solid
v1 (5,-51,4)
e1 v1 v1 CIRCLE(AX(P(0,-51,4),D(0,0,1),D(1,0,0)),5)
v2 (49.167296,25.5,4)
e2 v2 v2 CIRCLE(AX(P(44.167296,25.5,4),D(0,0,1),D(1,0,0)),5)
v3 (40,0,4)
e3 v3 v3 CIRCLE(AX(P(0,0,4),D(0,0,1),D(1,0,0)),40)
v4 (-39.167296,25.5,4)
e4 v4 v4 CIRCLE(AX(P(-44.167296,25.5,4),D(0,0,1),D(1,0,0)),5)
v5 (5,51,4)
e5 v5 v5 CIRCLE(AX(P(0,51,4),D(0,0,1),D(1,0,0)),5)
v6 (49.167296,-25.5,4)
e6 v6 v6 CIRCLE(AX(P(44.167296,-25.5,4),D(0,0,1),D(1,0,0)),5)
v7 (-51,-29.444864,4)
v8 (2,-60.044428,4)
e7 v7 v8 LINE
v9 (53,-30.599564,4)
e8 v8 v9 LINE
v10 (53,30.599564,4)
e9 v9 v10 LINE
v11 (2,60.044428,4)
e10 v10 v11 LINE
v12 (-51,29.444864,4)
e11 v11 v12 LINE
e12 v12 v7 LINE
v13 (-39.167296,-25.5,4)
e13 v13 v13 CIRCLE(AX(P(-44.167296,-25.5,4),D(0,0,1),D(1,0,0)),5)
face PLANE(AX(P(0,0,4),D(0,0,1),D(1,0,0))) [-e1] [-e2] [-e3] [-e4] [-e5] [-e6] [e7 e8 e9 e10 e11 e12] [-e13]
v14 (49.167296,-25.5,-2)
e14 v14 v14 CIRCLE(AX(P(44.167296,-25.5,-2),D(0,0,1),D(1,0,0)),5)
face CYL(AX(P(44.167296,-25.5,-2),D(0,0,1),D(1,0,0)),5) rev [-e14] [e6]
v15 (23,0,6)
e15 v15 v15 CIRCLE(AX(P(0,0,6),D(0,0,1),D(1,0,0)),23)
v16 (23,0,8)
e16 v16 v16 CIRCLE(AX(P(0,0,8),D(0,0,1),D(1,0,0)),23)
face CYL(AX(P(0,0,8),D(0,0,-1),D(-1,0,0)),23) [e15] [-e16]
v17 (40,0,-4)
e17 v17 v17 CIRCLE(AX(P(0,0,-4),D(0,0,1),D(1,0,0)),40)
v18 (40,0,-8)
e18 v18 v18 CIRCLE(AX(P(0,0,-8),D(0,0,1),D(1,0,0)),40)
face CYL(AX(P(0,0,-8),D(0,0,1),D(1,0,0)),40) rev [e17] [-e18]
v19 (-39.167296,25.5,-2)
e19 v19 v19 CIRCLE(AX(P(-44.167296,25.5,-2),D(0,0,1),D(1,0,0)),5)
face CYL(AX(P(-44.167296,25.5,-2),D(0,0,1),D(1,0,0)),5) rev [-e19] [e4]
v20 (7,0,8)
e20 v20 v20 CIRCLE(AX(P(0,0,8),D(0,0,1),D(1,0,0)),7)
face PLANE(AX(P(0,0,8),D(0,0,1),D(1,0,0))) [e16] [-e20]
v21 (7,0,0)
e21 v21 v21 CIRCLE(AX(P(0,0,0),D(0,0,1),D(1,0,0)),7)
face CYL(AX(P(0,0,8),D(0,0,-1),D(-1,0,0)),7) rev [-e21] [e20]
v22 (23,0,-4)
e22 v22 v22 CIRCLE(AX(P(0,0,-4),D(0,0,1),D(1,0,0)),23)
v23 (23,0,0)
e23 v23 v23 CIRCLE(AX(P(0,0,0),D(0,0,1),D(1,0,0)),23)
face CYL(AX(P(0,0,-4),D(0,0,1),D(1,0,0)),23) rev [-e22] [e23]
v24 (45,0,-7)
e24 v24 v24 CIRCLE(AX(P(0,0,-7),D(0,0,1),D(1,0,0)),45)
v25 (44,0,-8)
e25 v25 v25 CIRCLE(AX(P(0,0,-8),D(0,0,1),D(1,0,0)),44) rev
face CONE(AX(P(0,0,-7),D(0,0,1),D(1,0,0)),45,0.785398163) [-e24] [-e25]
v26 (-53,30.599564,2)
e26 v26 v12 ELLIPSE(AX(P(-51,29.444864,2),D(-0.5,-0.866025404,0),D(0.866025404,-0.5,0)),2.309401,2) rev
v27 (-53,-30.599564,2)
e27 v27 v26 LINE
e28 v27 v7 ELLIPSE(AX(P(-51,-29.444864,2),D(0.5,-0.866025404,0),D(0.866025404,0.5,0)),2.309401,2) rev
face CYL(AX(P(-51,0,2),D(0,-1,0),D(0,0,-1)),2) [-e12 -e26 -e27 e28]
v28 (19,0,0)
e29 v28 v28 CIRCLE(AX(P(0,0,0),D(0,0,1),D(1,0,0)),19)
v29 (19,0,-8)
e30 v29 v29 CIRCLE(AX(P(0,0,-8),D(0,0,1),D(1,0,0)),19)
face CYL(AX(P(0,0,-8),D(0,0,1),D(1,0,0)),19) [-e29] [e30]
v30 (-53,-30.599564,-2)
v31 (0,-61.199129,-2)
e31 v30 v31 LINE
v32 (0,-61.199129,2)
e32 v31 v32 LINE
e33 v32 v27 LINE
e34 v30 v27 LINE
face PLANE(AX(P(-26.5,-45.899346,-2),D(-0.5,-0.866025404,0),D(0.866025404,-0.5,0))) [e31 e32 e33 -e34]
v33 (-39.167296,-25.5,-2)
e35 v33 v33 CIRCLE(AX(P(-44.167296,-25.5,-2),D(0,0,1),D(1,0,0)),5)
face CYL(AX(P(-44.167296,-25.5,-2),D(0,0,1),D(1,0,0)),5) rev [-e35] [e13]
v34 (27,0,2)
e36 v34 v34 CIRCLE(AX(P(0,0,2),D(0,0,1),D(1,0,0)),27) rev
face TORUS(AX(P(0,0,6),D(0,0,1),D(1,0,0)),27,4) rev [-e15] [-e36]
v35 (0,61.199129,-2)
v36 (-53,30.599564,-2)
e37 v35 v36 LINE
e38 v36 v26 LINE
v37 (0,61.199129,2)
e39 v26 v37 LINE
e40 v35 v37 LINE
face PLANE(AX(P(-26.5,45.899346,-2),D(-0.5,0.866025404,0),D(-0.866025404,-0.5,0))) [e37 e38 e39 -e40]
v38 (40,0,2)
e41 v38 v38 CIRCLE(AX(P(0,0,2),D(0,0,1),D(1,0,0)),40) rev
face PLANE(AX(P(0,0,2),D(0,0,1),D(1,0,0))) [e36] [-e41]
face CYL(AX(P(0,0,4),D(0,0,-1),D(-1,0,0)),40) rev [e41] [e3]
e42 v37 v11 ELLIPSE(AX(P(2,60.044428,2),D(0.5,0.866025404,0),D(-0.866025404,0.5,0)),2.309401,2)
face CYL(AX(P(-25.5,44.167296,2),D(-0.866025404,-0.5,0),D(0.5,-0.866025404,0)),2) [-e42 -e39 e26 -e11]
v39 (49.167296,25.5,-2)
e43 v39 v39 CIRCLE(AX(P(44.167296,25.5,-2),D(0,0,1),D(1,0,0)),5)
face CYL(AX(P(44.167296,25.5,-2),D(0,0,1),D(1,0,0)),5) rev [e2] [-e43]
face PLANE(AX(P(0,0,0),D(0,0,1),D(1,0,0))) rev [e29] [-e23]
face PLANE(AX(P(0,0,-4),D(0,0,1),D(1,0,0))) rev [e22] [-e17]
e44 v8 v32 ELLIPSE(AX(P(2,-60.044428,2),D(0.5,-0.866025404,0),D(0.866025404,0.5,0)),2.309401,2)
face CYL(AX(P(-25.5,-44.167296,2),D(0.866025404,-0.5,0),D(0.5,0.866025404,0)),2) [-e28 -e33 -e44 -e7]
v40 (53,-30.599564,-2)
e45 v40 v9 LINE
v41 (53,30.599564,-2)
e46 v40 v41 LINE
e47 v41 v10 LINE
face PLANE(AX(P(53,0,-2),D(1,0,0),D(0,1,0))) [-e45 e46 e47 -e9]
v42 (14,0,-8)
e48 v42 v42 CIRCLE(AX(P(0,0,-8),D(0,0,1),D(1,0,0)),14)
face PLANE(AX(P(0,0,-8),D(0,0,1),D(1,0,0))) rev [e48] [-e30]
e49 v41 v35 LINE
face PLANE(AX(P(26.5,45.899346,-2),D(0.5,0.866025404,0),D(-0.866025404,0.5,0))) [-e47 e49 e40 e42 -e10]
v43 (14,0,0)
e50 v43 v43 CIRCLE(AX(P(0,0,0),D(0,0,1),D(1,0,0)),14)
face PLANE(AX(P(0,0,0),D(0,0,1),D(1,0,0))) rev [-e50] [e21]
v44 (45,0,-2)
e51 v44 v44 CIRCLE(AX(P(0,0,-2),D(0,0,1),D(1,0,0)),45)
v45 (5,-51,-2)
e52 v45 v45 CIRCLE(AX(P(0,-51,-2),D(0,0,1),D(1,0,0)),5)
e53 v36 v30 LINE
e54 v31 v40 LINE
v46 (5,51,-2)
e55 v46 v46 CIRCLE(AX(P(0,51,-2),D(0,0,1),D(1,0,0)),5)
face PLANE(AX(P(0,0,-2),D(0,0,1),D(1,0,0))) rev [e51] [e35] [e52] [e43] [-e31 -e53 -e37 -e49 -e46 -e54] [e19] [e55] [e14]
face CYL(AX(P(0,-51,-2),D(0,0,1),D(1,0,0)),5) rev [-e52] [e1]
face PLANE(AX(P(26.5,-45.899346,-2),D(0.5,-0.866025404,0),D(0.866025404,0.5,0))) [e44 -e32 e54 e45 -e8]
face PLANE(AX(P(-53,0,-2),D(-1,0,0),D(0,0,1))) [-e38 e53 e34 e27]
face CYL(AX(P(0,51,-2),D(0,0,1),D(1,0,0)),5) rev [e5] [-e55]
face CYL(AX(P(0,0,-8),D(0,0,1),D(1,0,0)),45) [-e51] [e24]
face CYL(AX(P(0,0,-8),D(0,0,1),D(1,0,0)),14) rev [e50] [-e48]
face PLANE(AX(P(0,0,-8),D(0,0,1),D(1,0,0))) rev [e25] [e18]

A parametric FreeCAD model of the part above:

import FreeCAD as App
import Part
import Sketcher
Q = App.Units.Quantity


def edges_at(feature, points):
    """Names of the edges that pass closest to the given points."""
    edges = feature.Shape.Edges
    near = lambda p: min(range(len(edges)), key=lambda i: edges[i].distToShape(Part.Vertex(*p))[0])
    return sorted({f"Edge{near(p) + 1}" for p in points})


def add_polygon(sketch, points):
    """Adds a closed chain of lines whose ends are joined by coincident constraints."""
    first, n = sketch.GeometryCount, len(points)
    for a, b in zip(points, points[1:] + points[:1]):
        sketch.addGeometry(Part.LineSegment(App.Vector(*a, 0), App.Vector(*b, 0)), False)
    for i in range(n):
        sketch.addConstraint(Sketcher.Constraint("Coincident", first + i, 2, first + (i + 1) % n, 1))

doc = App.newDocument("Part")
body = doc.addObject("PartDesign::Body", "Body")

sketch1 = doc.addObject("Sketcher::SketchObject", "Sketch")
body.addObject(sketch1)
sketch1.AttachmentSupport = (doc.XY_Plane, [""])
sketch1.MapMode = "FlatFace"
sketch1.addGeometry([
    Part.Circle(App.Vector(0, 0, 0), App.Vector(0, 0, 1), 14),
    Part.Circle(App.Vector(0, 0, 0), App.Vector(0, 0, 1), 7),
], False)
sketch1.addConstraint([
    Sketcher.Constraint("Coincident", 0, 3, -1, 1),
    Sketcher.Constraint("Coincident", 1, 3, -1, 1),
    Sketcher.Constraint("Diameter", 0, Q("28 mm")),
    Sketcher.Constraint("Diameter", 1, Q("14 mm")),
])
pad1 = doc.addObject("PartDesign::Pad", "Pad")
body.addObject(pad1)
pad1.Profile = sketch1
pad1.Length = 8

sketch2 = doc.addObject("Sketcher::SketchObject", "Sketch001")
body.addObject(sketch2)
sketch2.AttachmentSupport = (doc.XY_Plane, [""])
sketch2.MapMode = "FlatFace"
sketch2.addGeometry([
    Part.Circle(App.Vector(0, 0, 0), App.Vector(0, 0, 1), 23),
    Part.Circle(App.Vector(0, 0, 0), App.Vector(0, 0, 1), 14),
], False)
sketch2.addConstraint([
    Sketcher.Constraint("Coincident", 0, 3, -1, 1),
    Sketcher.Constraint("Coincident", 1, 3, -1, 1),
    Sketcher.Constraint("Diameter", 0, Q("46 mm")),
    Sketcher.Constraint("Diameter", 1, Q("28 mm")),
])
pad2 = doc.addObject("PartDesign::Pad", "Pad001")
body.addObject(pad2)
pad2.Profile = sketch2
pad2.Length = 8

sketch3 = doc.addObject("Sketcher::SketchObject", "Sketch002")
body.addObject(sketch3)
sketch3.AttachmentSupport = (doc.XY_Plane, [""])
sketch3.MapMode = "FlatFace"
sketch3.addGeometry([
    Part.Circle(App.Vector(0, 0, 0), App.Vector(0, 0, 1), 19),
    Part.Circle(App.Vector(0, 0, 0), App.Vector(0, 0, 1), 14),
], False)
sketch3.addConstraint([
    Sketcher.Constraint("Coincident", 0, 3, -1, 1),
    Sketcher.Constraint("Coincident", 1, 3, -1, 1),
    Sketcher.Constraint("Diameter", 0, Q("38 mm")),
    Sketcher.Constraint("Diameter", 1, Q("28 mm")),
])
pad3 = doc.addObject("PartDesign::Pad", "Pad002")
body.addObject(pad3)
pad3.Profile = sketch3
pad3.Length = 8
pad3.Reversed = True

sketch4 = doc.addObject("Sketcher::SketchObject", "Sketch003")
body.addObject(sketch4)
sketch4.AttachmentSupport = (doc.XY_Plane, [""])
sketch4.MapMode = "FlatFace"
sketch4.addGeometry([
    Part.Circle(App.Vector(0, 0, 0), App.Vector(0, 0, 1), 40),
    Part.Circle(App.Vector(0, 0, 0), App.Vector(0, 0, 1), 23),
], False)
sketch4.addConstraint([
    Sketcher.Constraint("Coincident", 0, 3, -1, 1),
    Sketcher.Constraint("Coincident", 1, 3, -1, 1),
    Sketcher.Constraint("Diameter", 0, Q("80 mm")),
    Sketcher.Constraint("Diameter", 1, Q("46 mm")),
])
pad4 = doc.addObject("PartDesign::Pad", "Pad003")
body.addObject(pad4)
pad4.Profile = sketch4
pad4.Length = 2

sketch5 = doc.addObject("Sketcher::SketchObject", "Sketch004")
body.addObject(sketch5)
sketch5.AttachmentSupport = (doc.XY_Plane, [""])
sketch5.MapMode = "FlatFace"
sketch5.AttachmentOffset = App.Placement(App.Vector(0, 0, -4), App.Rotation())
sketch5.addGeometry([
    Part.Circle(App.Vector(0, 0, 0), App.Vector(0, 0, 1), 40),
    Part.Circle(App.Vector(0, 0, 0), App.Vector(0, 0, 1), 23),
], False)
sketch5.addConstraint([
    Sketcher.Constraint("Coincident", 0, 3, -1, 1),
    Sketcher.Constraint("Coincident", 1, 3, -1, 1),
    Sketcher.Constraint("Diameter", 0, Q("80 mm")),
    Sketcher.Constraint("Diameter", 1, Q("46 mm")),
])
pad5 = doc.addObject("PartDesign::Pad", "Pad004")
body.addObject(pad5)
pad5.Profile = sketch5
pad5.Length = 4

sketch6 = doc.addObject("Sketcher::SketchObject", "Sketch005")
body.addObject(sketch6)
sketch6.AttachmentSupport = (doc.XY_Plane, [""])
sketch6.MapMode = "FlatFace"
sketch6.AttachmentOffset = App.Placement(App.Vector(0, 0, -8), App.Rotation())
sketch6.addGeometry([
    Part.Circle(App.Vector(0, 0, 0), App.Vector(0, 0, 1), 45),
    Part.Circle(App.Vector(0, 0, 0), App.Vector(0, 0, 1), 40),
], False)
sketch6.addConstraint([
    Sketcher.Constraint("Coincident", 0, 3, -1, 1),
    Sketcher.Constraint("Coincident", 1, 3, -1, 1),
    Sketcher.Constraint("Diameter", 0, Q("90 mm")),
    Sketcher.Constraint("Diameter", 1, Q("80 mm")),
])
pad6 = doc.addObject("PartDesign::Pad", "Pad005")
body.addObject(pad6)
pad6.Profile = sketch6
pad6.Length = 8

sketch7 = doc.addObject("Sketcher::SketchObject", "Sketch006")
body.addObject(sketch7)
sketch7.AttachmentSupport = (doc.XY_Plane, [""])
sketch7.MapMode = "FlatFace"
sketch7.addGeometry([
    Part.Circle(App.Vector(0, 0, 0), App.Vector(0, 0, 1), 45),
    Part.Circle(App.Vector(0, 0, 0), App.Vector(0, 0, 1), 40),
], False)
sketch7.addConstraint([
    Sketcher.Constraint("Coincident", 0, 3, -1, 1),
    Sketcher.Constraint("Coincident", 1, 3, -1, 1),
    Sketcher.Constraint("Diameter", 0, Q("90 mm")),
    Sketcher.Constraint("Diameter", 1, Q("80 mm")),
])
pad7 = doc.addObject("PartDesign::Pad", "Pad006")
body.addObject(pad7)
pad7.Profile = sketch7
pad7.Length = 4

sketch8 = doc.addObject("Sketcher::SketchObject", "Sketch007")
body.addObject(sketch8)
sketch8.AttachmentSupport = (doc.XY_Plane, [""])
sketch8.MapMode = "FlatFace"
sketch8.AttachmentOffset = App.Placement(App.Vector(0, 0, -2), App.Rotation())
add_polygon(sketch8, [(-53, -30.599564), (0, -61.199129), (53, -30.599564), (53, 30.599564), (0, 61.199129), (-53, 30.599564)])
sketch8.addGeometry(Part.Circle(App.Vector(-44.167296, -25.5, 0), App.Vector(0, 0, 1), 5), False)
sketch8.addGeometry(Part.Circle(App.Vector(0, -51, 0), App.Vector(0, 0, 1), 5), False)
sketch8.addGeometry(Part.Circle(App.Vector(44.167296, -25.5, 0), App.Vector(0, 0, 1), 5), False)
sketch8.addGeometry(Part.Circle(App.Vector(-44.167296, 25.5, 0), App.Vector(0, 0, 1), 5), False)
sketch8.addGeometry(Part.Circle(App.Vector(0, 0, 0), App.Vector(0, 0, 1), 45), False)
sketch8.addGeometry(Part.Circle(App.Vector(44.167296, 25.5, 0), App.Vector(0, 0, 1), 5), False)
sketch8.addGeometry(Part.Circle(App.Vector(0, 51, 0), App.Vector(0, 0, 1), 5), False)
sketch8.addConstraint([
    Sketcher.Constraint("Vertical", 2),
    Sketcher.Constraint("Vertical", 5),
    Sketcher.Constraint("Coincident", 10, 3, -1, 1),
    Sketcher.Constraint("Equal", 6, 7),
    Sketcher.Constraint("Equal", 7, 8),
    Sketcher.Constraint("Equal", 8, 9),
    Sketcher.Constraint("Equal", 9, 11),
    Sketcher.Constraint("Equal", 11, 12),
    Sketcher.Constraint("Symmetric", 8, 3, 9, 3, -1, 1),
    Sketcher.Constraint("Symmetric", 6, 3, 11, 3, -1, 1),
    Sketcher.Constraint("Symmetric", 7, 3, 12, 3, -1, 1),
    Sketcher.Constraint("Symmetric", 0, 2, 3, 2, -1, 1),
    Sketcher.Constraint("Symmetric", 1, 2, 4, 2, -1, 1),
    Sketcher.Constraint("Symmetric", 6, 3, 8, 3, -2),
    Sketcher.Constraint("PointOnObject", 7, 3, -2),
    Sketcher.Constraint("PointOnObject", 0, 2, -2),
    Sketcher.Constraint("Parallel", 0, 3),
    Sketcher.Constraint("Horizontal", 2, 2, 4, 2),
    Sketcher.Constraint("Diameter", 6, Q("10 mm")),
    Sketcher.Constraint("Diameter", 10, Q("90 mm")),
    Sketcher.Constraint("Angle", 0, Q("-30 deg")),
    Sketcher.Constraint("DistanceY", 7, 3, -1, 1, Q("51 mm")),
    Sketcher.Constraint("DistanceX", -1, 1, 1, 2, Q("53 mm")),
    Sketcher.Constraint("DistanceY", 6, 3, 9, 3, Q("51 mm")),
    Sketcher.Constraint("DistanceY", 2, 1, 2, 2, Q("61.199129 mm")),
    Sketcher.Constraint("DistanceX", 6, 3, 8, 3, Q("88.334591 mm")),
])
pad8 = doc.addObject("PartDesign::Pad", "Pad007")
body.addObject(pad8)
pad8.Profile = sketch8
pad8.Length = 2

sketch9 = doc.addObject("Sketcher::SketchObject", "Sketch008")
body.addObject(sketch9)
sketch9.AttachmentSupport = (doc.XY_Plane, [""])
sketch9.MapMode = "FlatFace"
add_polygon(sketch9, [(-53, -30.599564), (0, -61.199129), (53, -30.599564), (53, 30.599564), (0, 61.199129), (-53, 30.599564)])
sketch9.addGeometry(Part.Circle(App.Vector(-44.167296, -25.5, 0), App.Vector(0, 0, 1), 5), False)
sketch9.addGeometry(Part.Circle(App.Vector(0, -51, 0), App.Vector(0, 0, 1), 5), False)
sketch9.addGeometry(Part.Circle(App.Vector(44.167296, -25.5, 0), App.Vector(0, 0, 1), 5), False)
sketch9.addGeometry(Part.Circle(App.Vector(-44.167296, 25.5, 0), App.Vector(0, 0, 1), 5), False)
sketch9.addGeometry(Part.Circle(App.Vector(0, 0, 0), App.Vector(0, 0, 1), 45), False)
sketch9.addGeometry(Part.Circle(App.Vector(44.167296, 25.5, 0), App.Vector(0, 0, 1), 5), False)
sketch9.addGeometry(Part.Circle(App.Vector(0, 51, 0), App.Vector(0, 0, 1), 5), False)
sketch9.addConstraint([
    Sketcher.Constraint("Vertical", 2),
    Sketcher.Constraint("Vertical", 5),
    Sketcher.Constraint("Coincident", 10, 3, -1, 1),
    Sketcher.Constraint("Equal", 6, 7),
    Sketcher.Constraint("Equal", 7, 8),
    Sketcher.Constraint("Equal", 8, 9),
    Sketcher.Constraint("Equal", 9, 11),
    Sketcher.Constraint("Equal", 11, 12),
    Sketcher.Constraint("Symmetric", 8, 3, 9, 3, -1, 1),
    Sketcher.Constraint("Symmetric", 6, 3, 11, 3, -1, 1),
    Sketcher.Constraint("Symmetric", 7, 3, 12, 3, -1, 1),
    Sketcher.Constraint("Symmetric", 0, 2, 3, 2, -1, 1),
    Sketcher.Constraint("Symmetric", 1, 2, 4, 2, -1, 1),
    Sketcher.Constraint("Symmetric", 6, 3, 8, 3, -2),
    Sketcher.Constraint("PointOnObject", 7, 3, -2),
    Sketcher.Constraint("PointOnObject", 0, 2, -2),
    Sketcher.Constraint("Parallel", 0, 3),
    Sketcher.Constraint("Horizontal", 2, 2, 4, 2),
    Sketcher.Constraint("Diameter", 6, Q("10 mm")),
    Sketcher.Constraint("Diameter", 10, Q("90 mm")),
    Sketcher.Constraint("Angle", 0, Q("-30 deg")),
    Sketcher.Constraint("DistanceY", 7, 3, -1, 1, Q("51 mm")),
    Sketcher.Constraint("DistanceX", -1, 1, 1, 2, Q("53 mm")),
    Sketcher.Constraint("DistanceY", 6, 3, 9, 3, Q("51 mm")),
    Sketcher.Constraint("DistanceY", 2, 1, 2, 2, Q("61.199129 mm")),
    Sketcher.Constraint("DistanceX", 6, 3, 8, 3, Q("88.334591 mm")),
])
pad9 = doc.addObject("PartDesign::Pad", "Pad008")
body.addObject(pad9)
pad9.Profile = sketch9
pad9.Length = 4
doc.recompute()

fillet = doc.addObject("PartDesign::Fillet", "Fillet")
body.addObject(fillet)
fillet.Base = (pad9, edges_at(pad9, [(-23, 0, 2)]))
fillet.Radius = 4
doc.recompute()

chamfer = doc.addObject("PartDesign::Chamfer", "Chamfer")
body.addObject(chamfer)
chamfer.Base = (fillet, edges_at(fillet, [(-45, 0, -8)]))
chamfer.Size = 1
doc.recompute()

fillet2 = doc.addObject("PartDesign::Fillet", "Fillet001")
body.addObject(fillet2)
fillet2.Base = (chamfer, edges_at(chamfer, [(-26.5, -45.899, 4), (-26.5, 45.899, 4), (-53, 0, 4)]))
fillet2.Radius = 2

doc.recompute()
